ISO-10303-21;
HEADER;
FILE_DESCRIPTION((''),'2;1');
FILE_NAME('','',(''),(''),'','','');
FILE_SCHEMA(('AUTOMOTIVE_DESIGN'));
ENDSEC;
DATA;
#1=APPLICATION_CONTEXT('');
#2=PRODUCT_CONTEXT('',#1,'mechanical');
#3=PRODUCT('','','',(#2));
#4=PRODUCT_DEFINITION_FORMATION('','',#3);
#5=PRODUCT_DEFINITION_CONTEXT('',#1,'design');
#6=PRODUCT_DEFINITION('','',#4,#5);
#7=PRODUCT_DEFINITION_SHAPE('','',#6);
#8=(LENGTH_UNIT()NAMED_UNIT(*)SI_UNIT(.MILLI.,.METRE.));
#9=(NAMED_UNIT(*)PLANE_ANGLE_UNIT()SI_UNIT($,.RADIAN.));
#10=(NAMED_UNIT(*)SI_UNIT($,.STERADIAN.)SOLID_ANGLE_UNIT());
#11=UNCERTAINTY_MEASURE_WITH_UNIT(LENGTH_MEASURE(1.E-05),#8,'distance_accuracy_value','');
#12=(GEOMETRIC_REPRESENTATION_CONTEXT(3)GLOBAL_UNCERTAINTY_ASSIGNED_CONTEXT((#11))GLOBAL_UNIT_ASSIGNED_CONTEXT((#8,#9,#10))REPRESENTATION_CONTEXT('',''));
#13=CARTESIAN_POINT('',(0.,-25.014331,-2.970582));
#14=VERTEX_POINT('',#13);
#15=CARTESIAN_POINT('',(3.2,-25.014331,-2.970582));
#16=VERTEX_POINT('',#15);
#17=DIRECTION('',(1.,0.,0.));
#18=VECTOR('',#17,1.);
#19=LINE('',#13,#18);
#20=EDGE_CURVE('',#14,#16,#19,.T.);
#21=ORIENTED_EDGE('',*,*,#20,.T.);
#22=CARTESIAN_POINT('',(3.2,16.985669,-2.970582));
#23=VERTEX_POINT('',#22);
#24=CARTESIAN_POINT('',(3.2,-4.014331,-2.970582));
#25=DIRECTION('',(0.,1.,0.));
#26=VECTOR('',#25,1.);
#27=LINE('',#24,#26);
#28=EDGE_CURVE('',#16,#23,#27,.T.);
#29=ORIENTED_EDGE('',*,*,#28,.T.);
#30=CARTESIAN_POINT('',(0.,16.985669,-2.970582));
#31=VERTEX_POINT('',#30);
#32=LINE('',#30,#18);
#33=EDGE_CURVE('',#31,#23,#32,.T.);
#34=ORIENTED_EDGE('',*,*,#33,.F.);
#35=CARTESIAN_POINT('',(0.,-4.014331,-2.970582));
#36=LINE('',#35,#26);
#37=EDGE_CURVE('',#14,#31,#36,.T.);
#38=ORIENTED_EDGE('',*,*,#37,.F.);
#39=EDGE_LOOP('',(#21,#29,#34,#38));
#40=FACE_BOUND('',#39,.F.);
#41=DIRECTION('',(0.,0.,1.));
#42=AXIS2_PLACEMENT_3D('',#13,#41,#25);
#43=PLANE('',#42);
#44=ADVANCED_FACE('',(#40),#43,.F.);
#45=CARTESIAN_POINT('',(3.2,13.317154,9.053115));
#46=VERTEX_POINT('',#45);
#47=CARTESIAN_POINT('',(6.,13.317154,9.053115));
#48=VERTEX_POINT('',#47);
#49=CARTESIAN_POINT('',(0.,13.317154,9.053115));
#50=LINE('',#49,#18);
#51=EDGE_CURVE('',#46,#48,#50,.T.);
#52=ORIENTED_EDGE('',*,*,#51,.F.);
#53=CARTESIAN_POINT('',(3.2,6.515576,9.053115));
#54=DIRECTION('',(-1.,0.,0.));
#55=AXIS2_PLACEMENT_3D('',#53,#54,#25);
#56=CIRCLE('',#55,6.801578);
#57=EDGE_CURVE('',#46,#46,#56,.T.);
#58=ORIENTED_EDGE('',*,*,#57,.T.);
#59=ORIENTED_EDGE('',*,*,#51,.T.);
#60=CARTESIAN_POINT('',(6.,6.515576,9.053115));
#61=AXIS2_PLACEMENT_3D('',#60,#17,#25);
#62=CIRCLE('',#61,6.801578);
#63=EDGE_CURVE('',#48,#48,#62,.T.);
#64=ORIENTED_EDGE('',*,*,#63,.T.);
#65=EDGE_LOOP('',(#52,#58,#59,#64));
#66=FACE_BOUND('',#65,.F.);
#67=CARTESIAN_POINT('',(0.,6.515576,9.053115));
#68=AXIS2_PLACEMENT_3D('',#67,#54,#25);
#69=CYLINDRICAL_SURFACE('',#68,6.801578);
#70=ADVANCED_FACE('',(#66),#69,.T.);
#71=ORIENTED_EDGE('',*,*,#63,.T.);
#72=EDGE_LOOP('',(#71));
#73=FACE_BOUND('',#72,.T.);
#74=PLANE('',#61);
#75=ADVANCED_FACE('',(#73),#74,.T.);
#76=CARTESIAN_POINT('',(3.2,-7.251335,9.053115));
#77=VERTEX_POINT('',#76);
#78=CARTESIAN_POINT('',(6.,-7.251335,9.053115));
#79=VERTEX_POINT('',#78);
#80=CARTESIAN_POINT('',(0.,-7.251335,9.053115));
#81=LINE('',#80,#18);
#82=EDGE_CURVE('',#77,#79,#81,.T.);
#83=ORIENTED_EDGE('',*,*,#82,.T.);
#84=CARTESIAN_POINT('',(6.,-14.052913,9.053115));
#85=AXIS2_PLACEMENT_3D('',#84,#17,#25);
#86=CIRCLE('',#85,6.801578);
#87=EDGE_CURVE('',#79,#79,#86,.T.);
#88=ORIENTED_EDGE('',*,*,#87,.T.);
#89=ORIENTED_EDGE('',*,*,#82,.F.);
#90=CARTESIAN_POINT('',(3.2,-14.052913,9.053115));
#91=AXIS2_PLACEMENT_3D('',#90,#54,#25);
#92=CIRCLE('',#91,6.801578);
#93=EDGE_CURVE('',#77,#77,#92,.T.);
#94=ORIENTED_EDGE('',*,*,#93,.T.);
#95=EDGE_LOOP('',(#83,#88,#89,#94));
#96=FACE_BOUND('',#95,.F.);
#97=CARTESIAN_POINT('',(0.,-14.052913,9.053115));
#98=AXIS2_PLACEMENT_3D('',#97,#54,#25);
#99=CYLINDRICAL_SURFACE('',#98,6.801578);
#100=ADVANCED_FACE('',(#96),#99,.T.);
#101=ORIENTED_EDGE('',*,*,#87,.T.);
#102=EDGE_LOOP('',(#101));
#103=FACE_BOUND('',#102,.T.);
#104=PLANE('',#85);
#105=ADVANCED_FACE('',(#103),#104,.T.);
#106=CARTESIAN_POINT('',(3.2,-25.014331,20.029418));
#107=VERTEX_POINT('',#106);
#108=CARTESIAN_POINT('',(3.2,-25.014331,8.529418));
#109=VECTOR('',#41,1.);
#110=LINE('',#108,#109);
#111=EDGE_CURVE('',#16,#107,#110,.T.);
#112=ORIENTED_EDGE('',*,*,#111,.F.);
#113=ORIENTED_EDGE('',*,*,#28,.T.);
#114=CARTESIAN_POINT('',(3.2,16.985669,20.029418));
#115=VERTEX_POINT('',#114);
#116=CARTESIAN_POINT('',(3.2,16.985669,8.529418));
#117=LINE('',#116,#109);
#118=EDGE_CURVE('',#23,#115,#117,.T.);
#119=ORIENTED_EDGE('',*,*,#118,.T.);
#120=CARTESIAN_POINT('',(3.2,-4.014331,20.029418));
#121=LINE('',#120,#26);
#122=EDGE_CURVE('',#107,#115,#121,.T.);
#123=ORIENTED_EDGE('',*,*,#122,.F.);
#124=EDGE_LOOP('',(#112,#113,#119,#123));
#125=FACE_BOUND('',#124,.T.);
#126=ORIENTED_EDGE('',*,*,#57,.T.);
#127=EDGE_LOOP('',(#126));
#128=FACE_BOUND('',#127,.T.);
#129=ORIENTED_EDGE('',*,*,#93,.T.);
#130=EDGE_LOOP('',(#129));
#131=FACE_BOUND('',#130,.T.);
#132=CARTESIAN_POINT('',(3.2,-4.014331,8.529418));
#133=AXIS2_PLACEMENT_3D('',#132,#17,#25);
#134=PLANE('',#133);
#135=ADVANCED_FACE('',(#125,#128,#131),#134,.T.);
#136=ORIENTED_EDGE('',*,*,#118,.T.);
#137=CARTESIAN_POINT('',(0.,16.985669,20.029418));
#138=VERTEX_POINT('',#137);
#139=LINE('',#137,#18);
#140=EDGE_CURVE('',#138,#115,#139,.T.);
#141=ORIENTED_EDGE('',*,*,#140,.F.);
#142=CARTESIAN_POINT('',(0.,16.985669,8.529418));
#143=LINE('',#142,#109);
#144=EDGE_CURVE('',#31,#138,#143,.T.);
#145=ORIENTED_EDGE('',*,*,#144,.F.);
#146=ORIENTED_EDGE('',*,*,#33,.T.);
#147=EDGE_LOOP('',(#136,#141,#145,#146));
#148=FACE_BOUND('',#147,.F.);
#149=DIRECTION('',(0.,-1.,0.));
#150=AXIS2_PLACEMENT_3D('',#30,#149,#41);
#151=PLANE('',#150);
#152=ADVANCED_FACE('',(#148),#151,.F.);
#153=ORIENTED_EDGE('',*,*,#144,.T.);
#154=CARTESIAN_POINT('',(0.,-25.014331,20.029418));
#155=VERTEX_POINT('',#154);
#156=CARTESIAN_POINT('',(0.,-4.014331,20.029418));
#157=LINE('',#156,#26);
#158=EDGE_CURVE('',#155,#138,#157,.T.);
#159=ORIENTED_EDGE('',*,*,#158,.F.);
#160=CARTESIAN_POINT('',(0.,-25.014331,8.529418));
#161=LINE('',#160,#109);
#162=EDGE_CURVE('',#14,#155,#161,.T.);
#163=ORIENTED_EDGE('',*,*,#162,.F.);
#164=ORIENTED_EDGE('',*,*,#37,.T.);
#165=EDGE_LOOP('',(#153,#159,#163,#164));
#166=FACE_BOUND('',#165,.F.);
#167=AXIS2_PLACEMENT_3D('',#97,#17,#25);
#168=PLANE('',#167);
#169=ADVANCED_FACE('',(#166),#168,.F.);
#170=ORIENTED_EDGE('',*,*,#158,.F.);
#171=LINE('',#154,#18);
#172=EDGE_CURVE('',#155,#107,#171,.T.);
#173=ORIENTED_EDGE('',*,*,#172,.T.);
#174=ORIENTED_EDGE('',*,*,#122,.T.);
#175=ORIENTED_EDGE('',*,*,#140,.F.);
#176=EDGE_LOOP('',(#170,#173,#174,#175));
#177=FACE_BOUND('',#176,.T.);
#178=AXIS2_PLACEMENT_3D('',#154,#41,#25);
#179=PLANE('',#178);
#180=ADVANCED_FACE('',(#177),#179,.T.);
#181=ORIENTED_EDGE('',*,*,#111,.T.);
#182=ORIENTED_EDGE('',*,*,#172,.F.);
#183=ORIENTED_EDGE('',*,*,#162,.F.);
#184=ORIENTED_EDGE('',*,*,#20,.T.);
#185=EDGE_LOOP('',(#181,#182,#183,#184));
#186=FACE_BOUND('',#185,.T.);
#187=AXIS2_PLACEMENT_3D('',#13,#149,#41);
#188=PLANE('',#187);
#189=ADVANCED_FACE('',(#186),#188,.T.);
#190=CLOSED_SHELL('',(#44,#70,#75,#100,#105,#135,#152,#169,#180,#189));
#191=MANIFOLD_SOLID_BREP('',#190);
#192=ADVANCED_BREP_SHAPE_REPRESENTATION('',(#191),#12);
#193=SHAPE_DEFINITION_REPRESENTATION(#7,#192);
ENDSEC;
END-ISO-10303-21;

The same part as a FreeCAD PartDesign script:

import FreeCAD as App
import Part
import Sketcher

V = App.Vector

doc = App.newDocument("Part")
params = doc.addObject("Spreadsheet::Sheet", "Params")
for row, (alias, value) in enumerate([
    ("sketch1_width", "42 mm"),
    ("sketch1_height", "23 mm"),
    ("pad1_length", "3.2 mm"),
    ("pad2_length", "6 mm"),
], start=1):
    params.set(f"A{row}", alias)
    params.set(f"B{row}", "=" + value)
    params.setAlias(f"B{row}", alias)

body = doc.addObject("PartDesign::Body", "Body")

# Sketch on YZ plane
sketch1 = doc.addObject("Sketcher::SketchObject", "Sketch")
body.addObject(sketch1)
sketch1.AttachmentSupport = (doc.YZ_Plane, [""])
sketch1.MapMode = "FlatFace"
sketch1.addGeometry(Part.LineSegment(V(-25.014331, 20.029418, 0), V(-25.014331, -2.970582, 0)), False)
sketch1.addGeometry(Part.LineSegment(V(-25.014331, -2.970582, 0), V(16.985669, -2.970582, 0)), False)
sketch1.addGeometry(Part.LineSegment(V(16.985669, -2.970582, 0), V(16.985669, 20.029418, 0)), False)
sketch1.addGeometry(Part.LineSegment(V(16.985669, 20.029418, 0), V(-25.014331, 20.029418, 0)), False)
sketch1.addConstraint(Sketcher.Constraint("Coincident", 0, 2, 1, 1))
sketch1.addConstraint(Sketcher.Constraint("Coincident", 1, 2, 2, 1))
sketch1.addConstraint(Sketcher.Constraint("Coincident", 2, 2, 3, 1))
sketch1.addConstraint(Sketcher.Constraint("Coincident", 3, 2, 0, 1))
sketch1.addConstraint(Sketcher.Constraint("Vertical", 0))
sketch1.addConstraint(Sketcher.Constraint("Horizontal", 1))
sketch1.addConstraint(Sketcher.Constraint("Vertical", 2))
sketch1.addConstraint(Sketcher.Constraint("Horizontal", 3))
sketch1.addConstraint(Sketcher.Constraint("DistanceX", 1, 1, 1, 2, 42.0))
sketch1.addConstraint(Sketcher.Constraint("DistanceY", 0, 2, 0, 1, 23.0))
sketch1.addConstraint(Sketcher.Constraint("DistanceX", 0, 2, -1, 1, 25.014331))
sketch1.addConstraint(Sketcher.Constraint("DistanceY", 0, 2, -1, 1, 2.970582))
sketch1.setExpression("Constraints[8]", "Params.sketch1_width")
sketch1.setExpression("Constraints[9]", "Params.sketch1_height")
pad1 = doc.addObject("PartDesign::Pad", "Pad")
body.addObject(pad1)
pad1.Profile = sketch1
pad1.setExpression("Length", "Params.pad1_length")

# Sketch on YZ plane
sketch2 = doc.addObject("Sketcher::SketchObject", "Sketch001")
body.addObject(sketch2)
sketch2.AttachmentSupport = (doc.YZ_Plane, [""])
sketch2.MapMode = "FlatFace"
sketch2.addGeometry(Part.Circle(V(-14.052913, 9.053115, 0), V(0, 0, 1), 6.801578), False)
sketch2.addGeometry(Part.Circle(V(6.515576, 9.053115, 0), V(0, 0, 1), 6.801578), False)
sketch2.addConstraint(Sketcher.Constraint("Equal", 0, 1))
sketch2.addConstraint(Sketcher.Constraint("Horizontal", 0, 3, 1, 3))
sketch2.addConstraint(Sketcher.Constraint("Diameter", 0, 13.603156))
sketch2.addConstraint(Sketcher.Constraint("DistanceX", 0, 3, 1, 3, 20.568489))
sketch2.addConstraint(Sketcher.Constraint("DistanceX", 0, 3, -1, 1, 14.052913))
sketch2.addConstraint(Sketcher.Constraint("DistanceY", -1, 1, 0, 3, 9.053115))
pad2 = doc.addObject("PartDesign::Pad", "Pad001")
body.addObject(pad2)
pad2.Profile = sketch2
pad2.setExpression("Length", "Params.pad2_length")

doc.recompute()
